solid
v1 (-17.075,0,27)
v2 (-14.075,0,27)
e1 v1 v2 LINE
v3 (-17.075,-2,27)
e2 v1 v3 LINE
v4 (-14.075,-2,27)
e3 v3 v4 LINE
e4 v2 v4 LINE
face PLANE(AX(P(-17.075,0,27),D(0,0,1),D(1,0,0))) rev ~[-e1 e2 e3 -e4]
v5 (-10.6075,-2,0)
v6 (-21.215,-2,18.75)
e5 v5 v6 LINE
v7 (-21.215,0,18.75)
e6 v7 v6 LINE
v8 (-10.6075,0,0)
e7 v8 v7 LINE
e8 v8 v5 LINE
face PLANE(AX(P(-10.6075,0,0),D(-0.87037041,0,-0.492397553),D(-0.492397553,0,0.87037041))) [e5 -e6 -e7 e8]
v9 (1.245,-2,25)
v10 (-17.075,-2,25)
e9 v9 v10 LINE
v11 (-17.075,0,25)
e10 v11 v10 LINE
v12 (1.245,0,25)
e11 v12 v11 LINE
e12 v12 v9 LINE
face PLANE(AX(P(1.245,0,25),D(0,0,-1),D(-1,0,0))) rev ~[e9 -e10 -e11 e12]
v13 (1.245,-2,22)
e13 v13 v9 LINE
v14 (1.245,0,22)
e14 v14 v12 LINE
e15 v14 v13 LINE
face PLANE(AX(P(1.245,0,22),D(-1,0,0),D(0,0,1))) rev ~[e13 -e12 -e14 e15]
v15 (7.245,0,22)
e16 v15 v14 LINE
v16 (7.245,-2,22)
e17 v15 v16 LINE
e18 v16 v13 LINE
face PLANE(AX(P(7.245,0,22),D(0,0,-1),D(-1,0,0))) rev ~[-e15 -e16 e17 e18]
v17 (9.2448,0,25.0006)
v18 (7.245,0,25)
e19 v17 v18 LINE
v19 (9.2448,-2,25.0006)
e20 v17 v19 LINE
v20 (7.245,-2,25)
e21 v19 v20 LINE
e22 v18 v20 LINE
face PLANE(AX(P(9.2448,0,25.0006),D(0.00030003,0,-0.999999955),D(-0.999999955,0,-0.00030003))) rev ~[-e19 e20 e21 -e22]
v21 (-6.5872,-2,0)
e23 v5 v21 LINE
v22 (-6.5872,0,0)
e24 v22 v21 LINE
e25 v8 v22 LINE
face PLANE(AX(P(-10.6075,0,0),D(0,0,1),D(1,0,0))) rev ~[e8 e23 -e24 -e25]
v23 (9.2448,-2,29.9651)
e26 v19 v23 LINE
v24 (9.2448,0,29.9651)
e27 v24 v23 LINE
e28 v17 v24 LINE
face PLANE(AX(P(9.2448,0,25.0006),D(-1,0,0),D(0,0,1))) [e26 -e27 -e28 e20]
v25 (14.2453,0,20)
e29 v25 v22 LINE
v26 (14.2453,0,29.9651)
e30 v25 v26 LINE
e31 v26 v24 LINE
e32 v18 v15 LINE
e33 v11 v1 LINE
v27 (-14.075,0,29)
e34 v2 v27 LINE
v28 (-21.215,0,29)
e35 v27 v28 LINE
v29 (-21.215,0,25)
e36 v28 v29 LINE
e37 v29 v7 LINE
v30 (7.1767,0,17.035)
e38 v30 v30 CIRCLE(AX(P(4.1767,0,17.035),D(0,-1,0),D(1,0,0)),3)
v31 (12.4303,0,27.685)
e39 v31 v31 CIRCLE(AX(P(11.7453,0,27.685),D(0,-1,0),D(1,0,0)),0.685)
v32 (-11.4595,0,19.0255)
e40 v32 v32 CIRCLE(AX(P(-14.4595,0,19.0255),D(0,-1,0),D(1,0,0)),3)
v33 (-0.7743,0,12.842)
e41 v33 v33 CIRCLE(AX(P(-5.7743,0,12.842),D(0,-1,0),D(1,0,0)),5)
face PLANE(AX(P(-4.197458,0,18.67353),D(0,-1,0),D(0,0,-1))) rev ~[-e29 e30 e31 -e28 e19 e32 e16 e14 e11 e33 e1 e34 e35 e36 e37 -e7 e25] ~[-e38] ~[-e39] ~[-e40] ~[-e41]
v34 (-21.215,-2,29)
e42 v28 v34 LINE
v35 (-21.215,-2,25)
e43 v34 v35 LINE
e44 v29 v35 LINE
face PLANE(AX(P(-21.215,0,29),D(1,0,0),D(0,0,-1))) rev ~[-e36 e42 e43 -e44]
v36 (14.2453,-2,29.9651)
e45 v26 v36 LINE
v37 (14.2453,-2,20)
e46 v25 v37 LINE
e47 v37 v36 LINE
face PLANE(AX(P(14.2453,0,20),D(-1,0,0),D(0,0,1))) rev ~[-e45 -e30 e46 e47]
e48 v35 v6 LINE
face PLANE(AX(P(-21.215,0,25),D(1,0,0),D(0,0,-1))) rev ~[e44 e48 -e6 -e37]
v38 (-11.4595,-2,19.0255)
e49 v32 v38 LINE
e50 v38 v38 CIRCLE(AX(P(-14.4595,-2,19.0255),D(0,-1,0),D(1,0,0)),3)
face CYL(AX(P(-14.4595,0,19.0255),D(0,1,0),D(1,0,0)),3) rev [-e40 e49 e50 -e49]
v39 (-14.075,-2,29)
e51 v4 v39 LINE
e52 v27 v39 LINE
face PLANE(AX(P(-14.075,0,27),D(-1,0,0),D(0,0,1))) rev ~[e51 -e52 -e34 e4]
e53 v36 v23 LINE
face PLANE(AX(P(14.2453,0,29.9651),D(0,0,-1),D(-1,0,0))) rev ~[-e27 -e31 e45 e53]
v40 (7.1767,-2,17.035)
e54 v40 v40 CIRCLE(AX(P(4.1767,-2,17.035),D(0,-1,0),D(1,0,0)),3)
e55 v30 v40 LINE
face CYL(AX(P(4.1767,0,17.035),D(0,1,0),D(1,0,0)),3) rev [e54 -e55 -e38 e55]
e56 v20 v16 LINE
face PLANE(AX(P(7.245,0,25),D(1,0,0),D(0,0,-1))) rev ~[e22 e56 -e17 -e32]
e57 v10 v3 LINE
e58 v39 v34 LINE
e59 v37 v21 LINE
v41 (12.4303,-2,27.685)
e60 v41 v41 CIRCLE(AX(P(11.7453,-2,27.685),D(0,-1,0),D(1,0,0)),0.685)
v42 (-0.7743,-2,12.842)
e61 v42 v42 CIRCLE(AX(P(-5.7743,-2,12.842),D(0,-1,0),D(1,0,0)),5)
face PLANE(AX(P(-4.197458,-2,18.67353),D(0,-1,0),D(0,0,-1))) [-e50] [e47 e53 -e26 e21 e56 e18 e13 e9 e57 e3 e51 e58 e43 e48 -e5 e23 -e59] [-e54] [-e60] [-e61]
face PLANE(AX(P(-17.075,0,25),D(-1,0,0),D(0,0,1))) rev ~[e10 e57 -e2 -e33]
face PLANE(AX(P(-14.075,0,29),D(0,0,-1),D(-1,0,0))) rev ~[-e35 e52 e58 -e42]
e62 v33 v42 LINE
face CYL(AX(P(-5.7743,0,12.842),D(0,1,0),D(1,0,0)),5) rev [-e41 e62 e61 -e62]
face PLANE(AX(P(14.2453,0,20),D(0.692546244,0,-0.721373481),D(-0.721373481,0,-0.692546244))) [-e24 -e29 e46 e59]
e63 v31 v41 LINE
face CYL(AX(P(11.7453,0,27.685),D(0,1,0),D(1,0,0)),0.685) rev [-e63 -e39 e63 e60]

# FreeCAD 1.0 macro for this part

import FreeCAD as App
import Part
import Sketcher
from FreeCAD import Vector
Q = App.Units.Quantity

doc = App.newDocument("Part")
body = doc.addObject("PartDesign::Body", "Body")

sketch1 = body.newObject("Sketcher::SketchObject", "Sketch")
sketch1.AttachmentSupport = (doc.getObject("XZ_Plane"), [""])
sketch1.MapMode = "FlatFace"
sketch1.addGeometry([
    Part.LineSegment(Vector(9.2, 25, 0), Vector(7.2, 25, 0)),
    Part.LineSegment(Vector(7.2, 25, 0), Vector(7.2, 22, 0)),
    Part.LineSegment(Vector(7.2, 22, 0), Vector(1.2, 22, 0)),
    Part.LineSegment(Vector(1.2, 22, 0), Vector(1.2, 25, 0)),
    Part.LineSegment(Vector(1.2, 25, 0), Vector(-17.1, 25, 0)),
    Part.LineSegment(Vector(-17.1, 25, 0), Vector(-17.1, 27, 0)),
    Part.LineSegment(Vector(-17.1, 27, 0), Vector(-14.1, 27, 0)),
    Part.LineSegment(Vector(-14.1, 27, 0), Vector(-14.1, 29, 0)),
    Part.LineSegment(Vector(-14.1, 29, 0), Vector(-21.2, 29, 0)),
    Part.LineSegment(Vector(-21.2, 29, 0), Vector(-21.2, 18.8, 0)),
    Part.LineSegment(Vector(-21.2, 18.8, 0), Vector(-10.6, 0, 0)),
    Part.LineSegment(Vector(-10.6, 0, 0), Vector(-6.6, 0, 0)),
    Part.LineSegment(Vector(-6.6, 0, 0), Vector(14.2, 20, 0)),
    Part.LineSegment(Vector(14.2, 20, 0), Vector(14.2, 30, 0)),
    Part.LineSegment(Vector(14.2, 30, 0), Vector(9.2, 30, 0)),
    Part.LineSegment(Vector(9.2, 30, 0), Vector(9.2, 25, 0)),
    Part.Circle(Vector(-5.8, 12.8, 0), Vector(0, 0, 1), 5),
    Part.Circle(Vector(-14.5, 19, 0), Vector(0, 0, 1), 3),
    Part.Circle(Vector(4.2, 17, 0), Vector(0, 0, 1), 3),
    Part.Circle(Vector(11.7, 27.7, 0), Vector(0, 0, 1), 0.7),
], False)
sketch1.addConstraint([
    Sketcher.Constraint("Coincident", 0, 2, 1, 1),
    Sketcher.Constraint("Coincident", 1, 2, 2, 1),
    Sketcher.Constraint("Coincident", 2, 2, 3, 1),
    Sketcher.Constraint("Coincident", 3, 2, 4, 1),
    Sketcher.Constraint("Coincident", 4, 2, 5, 1),
    Sketcher.Constraint("Coincident", 5, 2, 6, 1),
    Sketcher.Constraint("Coincident", 6, 2, 7, 1),
    Sketcher.Constraint("Coincident", 7, 2, 8, 1),
    Sketcher.Constraint("Coincident", 8, 2, 9, 1),
    Sketcher.Constraint("Coincident", 9, 2, 10, 1),
    Sketcher.Constraint("Coincident", 10, 2, 11, 1),
    Sketcher.Constraint("Coincident", 11, 2, 12, 1),
    Sketcher.Constraint("Coincident", 12, 2, 13, 1),
    Sketcher.Constraint("Coincident", 13, 2, 14, 1),
    Sketcher.Constraint("Coincident", 14, 2, 15, 1),
    Sketcher.Constraint("Coincident", 15, 2, 0, 1),
    Sketcher.Constraint("Vertical", 1),
    Sketcher.Constraint("Horizontal", 2),
    Sketcher.Constraint("Vertical", 3),
    Sketcher.Constraint("Horizontal", 4),
    Sketcher.Constraint("Vertical", 5),
    Sketcher.Constraint("Horizontal", 6),
    Sketcher.Constraint("Vertical", 7),
    Sketcher.Constraint("Horizontal", 8),
    Sketcher.Constraint("Vertical", 9),
    Sketcher.Constraint("Horizontal", 11),
    Sketcher.Constraint("Vertical", 13),
    Sketcher.Constraint("Horizontal", 14),
    Sketcher.Constraint("Vertical", 15),
    Sketcher.Constraint("Equal", 17, 18),
    Sketcher.Constraint("PointOnObject", 10, 2, -1),
    Sketcher.Constraint("Horizontal", 0, 2, 3, 2),
    Sketcher.Constraint("Equal", 6, 1),
    Sketcher.Constraint("Equal", 5, 7),
    Sketcher.Constraint("Diameter", 16, Q("10 mm")),
    Sketcher.Constraint("Diameter", 17, Q("6 mm")),
    Sketcher.Constraint("Diameter", 19, Q("1.37 mm")),
    Sketcher.Constraint("DistanceX", 2, 2, 2, 1, Q("6 mm")),
    Sketcher.Constraint("DistanceX", 6, 1, 6, 2, Q("3 mm")),
    Sketcher.Constraint("DistanceY", 5, 1, 5, 2, Q("2 mm")),
    Sketcher.Constraint("DistanceY", -1, 1, 0, 2, Q("25 mm")),
    Sketcher.Constraint("DistanceY", -1, 1, 12, 2, Q("20 mm")),
    Sketcher.Constraint("DistanceX", 4, 2, 4, 1, Q("18.32 mm")),
    Sketcher.Constraint("DistanceX", 8, 2, 8, 1, Q("7.14 mm")),
    Sketcher.Constraint("DistanceY", 9, 2, 9, 1, Q("10.25 mm")),
    Sketcher.Constraint("DistanceX", 19, 3, 12, 2, Q("2.5 mm")),
    Sketcher.Constraint("DistanceY", 13, 1, 13, 2, Q("9.965 mm")),
    Sketcher.Constraint("DistanceY", 18, 3, 19, 3, Q("10.65 mm")),
    Sketcher.Constraint("DistanceY", 19, 3, 13, 2, Q("2.28 mm")),
    Sketcher.Constraint("Distance", 12, Q("28.879 mm")),
    Sketcher.Constraint("DistanceX", 11, 1, 11, 2, Q("4.0203 mm")),
    Sketcher.Constraint("DistanceX", 14, 2, 14, 1, Q("5.0005 mm")),
    Sketcher.Constraint("DistanceY", 15, 2, 15, 1, Q("4.9645 mm")),
    Sketcher.Constraint("DistanceY", -1, 1, 16, 3, Q("12.842 mm")),
    Sketcher.Constraint("DistanceX", -1, 1, 0, 2, Q("7.245 mm")),
    Sketcher.Constraint("DistanceX", 16, 3, 18, 3, Q("9.951 mm")),
    Sketcher.Constraint("DistanceX", 17, 3, 10, 2, Q("3.852 mm")),
    Sketcher.Constraint("DistanceX", 11, 2, 16, 3, Q("0.813 mm")),
    Sketcher.Constraint("Distance", 0, Q("1.9998 mm")),
    Sketcher.Constraint("DistanceY", -1, 1, 17, 3, Q("19.0255 mm")),
])
pad1 = body.newObject("PartDesign::Pad", "Pad")
pad1.Profile = sketch1
pad1.Length = 2

doc.recompute()
